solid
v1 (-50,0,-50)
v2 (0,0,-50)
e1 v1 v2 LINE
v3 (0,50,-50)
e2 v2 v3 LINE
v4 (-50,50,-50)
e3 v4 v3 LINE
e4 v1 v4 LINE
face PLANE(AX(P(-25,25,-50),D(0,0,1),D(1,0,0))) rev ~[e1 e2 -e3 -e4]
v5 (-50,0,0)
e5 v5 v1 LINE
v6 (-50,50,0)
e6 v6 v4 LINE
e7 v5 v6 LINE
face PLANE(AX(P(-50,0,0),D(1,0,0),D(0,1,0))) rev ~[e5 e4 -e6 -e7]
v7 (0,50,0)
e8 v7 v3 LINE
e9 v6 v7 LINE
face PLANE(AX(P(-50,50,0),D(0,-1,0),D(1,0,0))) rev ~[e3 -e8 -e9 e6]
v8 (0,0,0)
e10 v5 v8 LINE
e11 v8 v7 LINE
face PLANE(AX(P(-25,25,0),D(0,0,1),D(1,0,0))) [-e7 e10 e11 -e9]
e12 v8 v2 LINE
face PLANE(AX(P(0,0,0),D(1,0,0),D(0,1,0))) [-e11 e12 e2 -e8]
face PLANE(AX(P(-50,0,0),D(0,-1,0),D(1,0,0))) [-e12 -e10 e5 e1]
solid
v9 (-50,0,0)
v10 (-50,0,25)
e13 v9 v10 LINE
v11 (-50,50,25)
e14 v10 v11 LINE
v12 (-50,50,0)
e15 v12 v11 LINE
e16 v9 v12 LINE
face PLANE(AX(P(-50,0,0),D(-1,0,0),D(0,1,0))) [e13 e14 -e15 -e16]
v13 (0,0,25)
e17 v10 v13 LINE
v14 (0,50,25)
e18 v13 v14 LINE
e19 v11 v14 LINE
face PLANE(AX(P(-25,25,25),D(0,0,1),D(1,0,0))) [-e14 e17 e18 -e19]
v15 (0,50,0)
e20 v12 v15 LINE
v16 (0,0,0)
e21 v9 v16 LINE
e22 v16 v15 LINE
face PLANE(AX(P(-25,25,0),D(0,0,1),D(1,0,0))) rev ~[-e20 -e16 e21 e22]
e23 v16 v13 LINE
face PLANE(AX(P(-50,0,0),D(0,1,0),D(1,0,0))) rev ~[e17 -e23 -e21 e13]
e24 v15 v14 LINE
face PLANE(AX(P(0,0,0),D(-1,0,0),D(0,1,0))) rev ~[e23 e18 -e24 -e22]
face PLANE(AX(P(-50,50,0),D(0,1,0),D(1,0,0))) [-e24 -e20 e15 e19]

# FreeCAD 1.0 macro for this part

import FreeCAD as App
import Part
import Sketcher
from FreeCAD import Vector

doc = App.newDocument("Part")
body = doc.addObject("PartDesign::Body", "Body")

# Sketch on XY plane
sketch1 = doc.addObject("Sketcher::SketchObject", "Sketch")
body.addObject(sketch1)
sketch1.AttachmentSupport = (doc.XY_Plane, [""])
sketch1.MapMode = "FlatFace"
sketch1.addGeometry([
    Part.LineSegment(Vector(-50, 50, 0), Vector(-50, 0, 0)),
    Part.LineSegment(Vector(-50, 0, 0), Vector(0, 0, 0)),
    Part.LineSegment(Vector(0, 0, 0), Vector(0, 50, 0)),
    Part.LineSegment(Vector(0, 50, 0), Vector(-50, 50, 0)),
], False)
sketch1.addConstraint([
    Sketcher.Constraint("Coincident", 0, 2, 1, 1),
    Sketcher.Constraint("Coincident", 1, 2, 2, 1),
    Sketcher.Constraint("Coincident", 2, 2, 3, 1),
    Sketcher.Constraint("Coincident", 3, 2, 0, 1),
    Sketcher.Constraint("Vertical", 0),
    Sketcher.Constraint("Horizontal", 1),
    Sketcher.Constraint("Vertical", 2),
    Sketcher.Constraint("Horizontal", 3),
    Sketcher.Constraint("Coincident", 1, 2, -1, 1),
    Sketcher.Constraint("Equal", 3, 0),
    Sketcher.Constraint("DistanceX", 1, 1, 1, 2, 50.0),
])
pad1 = doc.addObject("PartDesign::Pad", "Pad")
body.addObject(pad1)
pad1.Profile = sketch1
pad1.Length = 50
pad1.Reversed = True
body2 = doc.addObject("PartDesign::Body", "Body001")

# Sketch on XY plane
sketch2 = doc.addObject("Sketcher::SketchObject", "Sketch001")
body2.addObject(sketch2)
sketch2.AttachmentSupport = (doc.getObject("XY_Plane001"), [""])
sketch2.MapMode = "FlatFace"
sketch2.addGeometry([
    Part.LineSegment(Vector(-50, 50, 0), Vector(-50, 0, 0)),
    Part.LineSegment(Vector(-50, 0, 0), Vector(0, 0, 0)),
    Part.LineSegment(Vector(0, 0, 0), Vector(0, 50, 0)),
    Part.LineSegment(Vector(0, 50, 0), Vector(-50, 50, 0)),
], False)
sketch2.addConstraint([
    Sketcher.Constraint("Coincident", 0, 2, 1, 1),
    Sketcher.Constraint("Coincident", 1, 2, 2, 1),
    Sketcher.Constraint("Coincident", 2, 2, 3, 1),
    Sketcher.Constraint("Coincident", 3, 2, 0, 1),
    Sketcher.Constraint("Vertical", 0),
    Sketcher.Constraint("Horizontal", 1),
    Sketcher.Constraint("Vertical", 2),
    Sketcher.Constraint("Horizontal", 3),
    Sketcher.Constraint("Coincident", 1, 2, -1, 1),
    Sketcher.Constraint("Equal", 3, 0),
    Sketcher.Constraint("DistanceX", 1, 1, 1, 2, 50.0),
])
pad2 = doc.addObject("PartDesign::Pad", "Pad001")
body2.addObject(pad2)
pad2.Profile = sketch2
pad2.Length = 25

doc.recompute()
